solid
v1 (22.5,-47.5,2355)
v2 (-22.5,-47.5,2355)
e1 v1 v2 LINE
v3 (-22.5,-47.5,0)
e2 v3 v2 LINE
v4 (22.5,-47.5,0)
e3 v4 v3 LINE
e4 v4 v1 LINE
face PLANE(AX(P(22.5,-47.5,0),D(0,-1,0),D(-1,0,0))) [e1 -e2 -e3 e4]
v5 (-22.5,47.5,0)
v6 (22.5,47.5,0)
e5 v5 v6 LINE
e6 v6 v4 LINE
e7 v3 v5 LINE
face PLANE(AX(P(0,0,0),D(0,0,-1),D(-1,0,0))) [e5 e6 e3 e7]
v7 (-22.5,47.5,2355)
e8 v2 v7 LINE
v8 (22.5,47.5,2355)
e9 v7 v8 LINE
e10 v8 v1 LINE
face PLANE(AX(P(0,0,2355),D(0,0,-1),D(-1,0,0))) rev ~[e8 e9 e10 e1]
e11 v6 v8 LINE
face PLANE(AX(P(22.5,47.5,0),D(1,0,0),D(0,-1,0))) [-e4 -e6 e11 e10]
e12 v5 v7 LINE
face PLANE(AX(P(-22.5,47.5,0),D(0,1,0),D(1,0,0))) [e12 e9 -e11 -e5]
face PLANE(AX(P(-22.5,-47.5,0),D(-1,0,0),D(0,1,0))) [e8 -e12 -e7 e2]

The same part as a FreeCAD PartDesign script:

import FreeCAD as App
import Part
import Sketcher


def add_polygon(sketch, points):
    """Adds a closed chain of lines whose ends are joined by coincident constraints."""
    first, n = sketch.GeometryCount, len(points)
    for a, b in zip(points, points[1:] + points[:1]):
        sketch.addGeometry(Part.LineSegment(App.Vector(*a, 0), App.Vector(*b, 0)), False)
    for i in range(n):
        sketch.addConstraint(Sketcher.Constraint("Coincident", first + i, 2, first + (i + 1) % n, 1))

doc = App.newDocument("Part")
params = doc.addObject("Spreadsheet::Sheet", "Params")
for row, (alias, value) in enumerate([
    ("sketch1_width", "45 mm"),
    ("sketch1_height", "95 mm"),
    ("pad1_length", "2355 mm"),
], start=1):
    params.set(f"A{row}", alias)
    params.set(f"B{row}", "=" + value)
    params.setAlias(f"B{row}", alias)

body = doc.addObject("PartDesign::Body", "Body")

sketch1 = body.newObject("Sketcher::SketchObject", "Sketch")
sketch1.AttachmentSupport = (doc.getObject("XY_Plane"), [""])
sketch1.MapMode = "FlatFace"
add_polygon(sketch1, [(22, 48), (22, -48), (-22, -48), (-22, 48)])
sketch1.addConstraint(Sketcher.Constraint("Vertical", 0))
sketch1.addConstraint(Sketcher.Constraint("Horizontal", 1))
sketch1.addConstraint(Sketcher.Constraint("Vertical", 2))
sketch1.addConstraint(Sketcher.Constraint("Horizontal", 3))
sketch1.addConstraint(Sketcher.Constraint("Symmetric", 0, 2, 2, 2, -1, 1))
sketch1.addConstraint(Sketcher.Constraint("DistanceX", 1, 2, 1, 1, 45.0))
sketch1.addConstraint(Sketcher.Constraint("DistanceY", 0, 2, 0, 1, 95.0))
sketch1.setExpression("Constraints[9]", "Params.sketch1_width")
sketch1.setExpression("Constraints[10]", "Params.sketch1_height")
pad1 = body.newObject("PartDesign::Pad", "Pad")
pad1.Profile = sketch1
pad1.setExpression("Length", "Params.pad1_length")

doc.recompute()
